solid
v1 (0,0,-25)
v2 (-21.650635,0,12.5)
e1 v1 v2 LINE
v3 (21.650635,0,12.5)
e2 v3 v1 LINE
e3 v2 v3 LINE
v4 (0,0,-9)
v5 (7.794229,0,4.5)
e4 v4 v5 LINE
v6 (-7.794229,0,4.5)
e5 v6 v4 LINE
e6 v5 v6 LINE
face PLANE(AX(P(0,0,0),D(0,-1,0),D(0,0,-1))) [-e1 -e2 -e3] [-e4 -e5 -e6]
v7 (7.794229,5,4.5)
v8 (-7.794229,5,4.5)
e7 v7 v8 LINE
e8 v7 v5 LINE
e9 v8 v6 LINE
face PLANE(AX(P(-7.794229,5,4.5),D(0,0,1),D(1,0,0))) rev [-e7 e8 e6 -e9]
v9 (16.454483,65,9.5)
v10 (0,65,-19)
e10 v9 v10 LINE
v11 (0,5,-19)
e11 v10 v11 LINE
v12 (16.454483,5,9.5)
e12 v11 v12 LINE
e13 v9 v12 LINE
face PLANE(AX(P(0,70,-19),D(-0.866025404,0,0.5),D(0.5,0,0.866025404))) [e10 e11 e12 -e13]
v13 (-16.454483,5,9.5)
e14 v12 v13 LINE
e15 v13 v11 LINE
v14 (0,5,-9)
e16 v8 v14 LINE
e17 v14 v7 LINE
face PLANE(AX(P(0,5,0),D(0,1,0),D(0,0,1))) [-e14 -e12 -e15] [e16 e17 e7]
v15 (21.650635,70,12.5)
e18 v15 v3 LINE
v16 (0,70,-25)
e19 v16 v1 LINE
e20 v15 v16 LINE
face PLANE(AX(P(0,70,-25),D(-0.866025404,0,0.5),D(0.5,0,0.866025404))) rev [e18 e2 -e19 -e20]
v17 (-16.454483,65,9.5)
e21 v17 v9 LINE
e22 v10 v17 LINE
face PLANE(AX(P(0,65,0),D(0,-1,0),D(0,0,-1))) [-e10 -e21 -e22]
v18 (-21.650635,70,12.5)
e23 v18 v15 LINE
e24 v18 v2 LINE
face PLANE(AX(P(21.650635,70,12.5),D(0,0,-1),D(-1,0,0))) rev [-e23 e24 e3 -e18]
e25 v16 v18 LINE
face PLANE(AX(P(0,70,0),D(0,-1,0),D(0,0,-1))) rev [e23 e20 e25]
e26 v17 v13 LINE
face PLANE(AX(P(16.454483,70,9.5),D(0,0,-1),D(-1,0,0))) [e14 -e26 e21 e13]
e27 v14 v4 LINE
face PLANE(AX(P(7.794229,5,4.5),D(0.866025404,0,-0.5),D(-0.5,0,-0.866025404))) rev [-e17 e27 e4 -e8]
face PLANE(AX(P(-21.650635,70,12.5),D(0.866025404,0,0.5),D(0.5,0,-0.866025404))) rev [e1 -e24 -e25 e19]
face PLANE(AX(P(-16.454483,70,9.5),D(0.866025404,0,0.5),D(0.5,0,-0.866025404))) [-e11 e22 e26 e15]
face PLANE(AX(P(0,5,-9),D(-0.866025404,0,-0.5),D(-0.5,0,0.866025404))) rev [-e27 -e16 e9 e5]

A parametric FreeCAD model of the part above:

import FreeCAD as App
import Part
import Sketcher

V = App.Vector
Q = App.Units.Quantity


def add_polygon(sketch, points):
    """Adds a closed chain of lines whose ends are joined by coincident constraints."""
    first, n = sketch.GeometryCount, len(points)
    for a, b in zip(points, points[1:] + points[:1]):
        sketch.addGeometry(Part.LineSegment(App.Vector(*a, 0), App.Vector(*b, 0)), False)
    for i in range(n):
        sketch.addConstraint(Sketcher.Constraint("Coincident", first + i, 2, first + (i + 1) % n, 1))

doc = App.newDocument("Part")
params = doc.addObject("Spreadsheet::Sheet", "Params")
for row, (alias, value) in enumerate([
    ("pad1_length", "70 mm"),
    ("pad2_length", "5 mm"),
    ("pad3_length", "5 mm"),
], start=1):
    params.set(f"A{row}", alias)
    params.set(f"B{row}", "=" + value)
    params.setAlias(f"B{row}", alias)

body = doc.addObject("PartDesign::Body", "Body")

# Sketch on XZ plane
sketch1 = doc.addObject("Sketcher::SketchObject", "Sketch")
body.addObject(sketch1)
sketch1.AttachmentSupport = (doc.XZ_Plane, [""])
sketch1.MapMode = "FlatFace"
add_polygon(sketch1, [(21.650635, 12.5), (0, -25), (-21.650635, 12.5)])  # lines 0-2
add_polygon(sketch1, [(-16.454483, 9.5), (0, -19), (16.454483, 9.5)])  # lines 3-5
sketch1.addConstraint([
    Sketcher.Constraint("Horizontal", 2),
    Sketcher.Constraint("Horizontal", 5),
    Sketcher.Constraint("PointOnObject", 0, 2, -2),
    Sketcher.Constraint("PointOnObject", 3, 2, -2),
    Sketcher.Constraint("Parallel", 1, 3),
    Sketcher.Constraint("Parallel", 0, 4),
    Sketcher.Constraint("Equal", 0, 1),
    Sketcher.Constraint("Angle", 0, Q("-120 deg")),
    Sketcher.Constraint("DistanceY", 0, 2, -1, 1, 25.0),
    Sketcher.Constraint("DistanceY", 3, 2, -1, 1, 19.0),
    Sketcher.Constraint("DistanceY", 4, 2, 2, 2, 3.0),
    Sketcher.Constraint("DistanceY", -1, 1, 1, 2, 12.5),
])
pad1 = doc.addObject("PartDesign::Pad", "Pad")
body.addObject(pad1)
pad1.Profile = sketch1
pad1.setExpression("Length", "Params.pad1_length")
pad1.Reversed = True

# Sketch on XZ plane
sketch2 = doc.addObject("Sketcher::SketchObject", "Sketch001")
body.addObject(sketch2)
sketch2.AttachmentSupport = (doc.XZ_Plane, [""])
sketch2.MapMode = "FlatFace"
sketch2.AttachmentOffset = App.Placement(V(0, 0, -70), App.Rotation())
add_polygon(sketch2, [(16.454483, 9.5), (0, -19), (-16.454483, 9.5)])  # lines 0-2
sketch2.addConstraint([
    Sketcher.Constraint("Horizontal", 2),
    Sketcher.Constraint("PointOnObject", 0, 2, -2),
    Sketcher.Constraint("Equal", 0, 1),
    Sketcher.Constraint("Angle", 0, Q("-120 deg")),
    Sketcher.Constraint("DistanceY", 0, 2, -1, 1, 19.0),
    Sketcher.Constraint("DistanceY", -1, 1, 1, 2, 9.5),
])
pad2 = doc.addObject("PartDesign::Pad", "Pad001")
body.addObject(pad2)
pad2.Profile = sketch2
pad2.setExpression("Length", "Params.pad2_length")

# Sketch on XZ plane
sketch3 = doc.addObject("Sketcher::SketchObject", "Sketch002")
body.addObject(sketch3)
sketch3.AttachmentSupport = (doc.XZ_Plane, [""])
sketch3.MapMode = "FlatFace"
add_polygon(sketch3, [(16.454483, 9.5), (-16.454483, 9.5), (0, -19)])  # lines 0-2
add_polygon(sketch3, [(0, -9), (-7.794229, 4.5), (7.794229, 4.5)])  # lines 3-5
sketch3.addConstraint([
    Sketcher.Constraint("Horizontal", 0),
    Sketcher.Constraint("Horizontal", 4),
    Sketcher.Constraint("PointOnObject", 1, 2, -2),
    Sketcher.Constraint("PointOnObject", 5, 2, -2),
    Sketcher.Constraint("Parallel", 1, 3),
    Sketcher.Constraint("Parallel", 2, 5),
    Sketcher.Constraint("Equal", 1, 2),
    Sketcher.Constraint("Angle", 1, Q("-60 deg")),
    Sketcher.Constraint("DistanceY", 1, 2, -1, 1, 19.0),
    Sketcher.Constraint("DistanceY", 5, 2, -1, 1, 9.0),
    Sketcher.Constraint("DistanceY", 3, 2, 0, 2, 5.0),
    Sketcher.Constraint("DistanceY", -1, 1, 0, 2, 9.5),
])
pad3 = doc.addObject("PartDesign::Pad", "Pad002")
body.addObject(pad3)
pad3.Profile = sketch3
pad3.setExpression("Length", "Params.pad3_length")
pad3.Reversed = True

doc.recompute()
